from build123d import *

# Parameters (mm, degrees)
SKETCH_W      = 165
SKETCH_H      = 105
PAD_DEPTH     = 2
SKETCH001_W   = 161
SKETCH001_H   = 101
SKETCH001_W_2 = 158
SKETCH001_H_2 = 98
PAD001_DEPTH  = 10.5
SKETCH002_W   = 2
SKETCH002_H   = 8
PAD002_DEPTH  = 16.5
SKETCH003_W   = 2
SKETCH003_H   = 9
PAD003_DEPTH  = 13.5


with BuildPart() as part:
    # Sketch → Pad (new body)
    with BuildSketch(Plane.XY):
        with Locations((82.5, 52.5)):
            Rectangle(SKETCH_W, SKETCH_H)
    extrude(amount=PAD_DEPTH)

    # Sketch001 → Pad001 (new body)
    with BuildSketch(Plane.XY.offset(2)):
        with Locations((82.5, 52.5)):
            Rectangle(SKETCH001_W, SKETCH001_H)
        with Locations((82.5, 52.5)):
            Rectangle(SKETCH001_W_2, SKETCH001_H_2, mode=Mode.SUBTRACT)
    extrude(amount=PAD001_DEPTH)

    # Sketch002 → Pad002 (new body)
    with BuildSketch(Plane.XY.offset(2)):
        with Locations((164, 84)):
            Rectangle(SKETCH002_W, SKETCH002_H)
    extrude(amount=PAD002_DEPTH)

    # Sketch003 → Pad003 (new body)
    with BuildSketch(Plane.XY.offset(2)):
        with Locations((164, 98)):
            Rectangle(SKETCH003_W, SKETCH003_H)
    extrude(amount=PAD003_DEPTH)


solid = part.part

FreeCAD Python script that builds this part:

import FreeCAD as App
import Part
import Sketcher


def add_polygon(sketch, points):
    """Adds a closed chain of lines whose ends are joined by coincident constraints."""
    first, n = sketch.GeometryCount, len(points)
    for a, b in zip(points, points[1:] + points[:1]):
        sketch.addGeometry(Part.LineSegment(App.Vector(*a, 0), App.Vector(*b, 0)), False)
    for i in range(n):
        sketch.addConstraint(Sketcher.Constraint("Coincident", first + i, 2, first + (i + 1) % n, 1))

doc = App.newDocument("Part")
body = doc.addObject("PartDesign::Body", "Body")

sketch1 = body.newObject("Sketcher::SketchObject", "Sketch")
sketch1.AttachmentSupport = (doc.getObject("XY_Plane"), [""])
sketch1.MapMode = "FlatFace"
add_polygon(sketch1, [(0, 105), (0, 0), (165, 0), (165, 105)])
sketch1.addConstraint([
    Sketcher.Constraint("Vertical", 0),
    Sketcher.Constraint("Horizontal", 1),
    Sketcher.Constraint("Vertical", 2),
    Sketcher.Constraint("Horizontal", 3),
    Sketcher.Constraint("Coincident", 0, 2, -1, 1),
    Sketcher.Constraint("DistanceX", 1, 1, 1, 2, 165.0),
    Sketcher.Constraint("DistanceY", 0, 2, 0, 1, 105.0),
])
pad1 = body.newObject("PartDesign::Pad", "Pad")
pad1.Profile = sketch1
pad1.Length = 2

sketch2 = body.newObject("Sketcher::SketchObject", "Sketch001")
sketch2.AttachmentSupport = (doc.getObject("XY_Plane"), [""])
sketch2.MapMode = "FlatFace"
sketch2.AttachmentOffset = App.Placement(App.Vector(0, 0, 2), App.Rotation())
add_polygon(sketch2, [(2, 103), (2, 2), (163, 2), (163, 103)])
add_polygon(sketch2, [(161.5, 3.5), (3.5, 3.5), (3.5, 101.5), (161.5, 101.5)])
sketch2.addConstraint([
    Sketcher.Constraint("Vertical", 0),
    Sketcher.Constraint("Horizontal", 1),
    Sketcher.Constraint("Vertical", 2),
    Sketcher.Constraint("Horizontal", 3),
    Sketcher.Constraint("Horizontal", 4),
    Sketcher.Constraint("Vertical", 5),
    Sketcher.Constraint("Horizontal", 6),
    Sketcher.Constraint("Vertical", 7),
    Sketcher.Constraint("DistanceX", 1, 1, 1, 2, 161.0),
    Sketcher.Constraint("DistanceX", 4, 2, 4, 1, 158.0),
    Sketcher.Constraint("DistanceY", 0, 2, 0, 1, 101.0),
    Sketcher.Constraint("DistanceY", 5, 1, 5, 2, 98.0),
    Sketcher.Constraint("DistanceX", -1, 1, 0, 2, 2.0),
    Sketcher.Constraint("DistanceY", -1, 1, 0, 2, 2.0),
    Sketcher.Constraint("DistanceX", -1, 1, 4, 2, 3.5),
    Sketcher.Constraint("DistanceY", -1, 1, 4, 2, 3.5),
])
pad2 = body.newObject("PartDesign::Pad", "Pad001")
pad2.Profile = sketch2
pad2.Length = 10.5

sketch3 = body.newObject("Sketcher::SketchObject", "Sketch002")
sketch3.AttachmentSupport = (doc.getObject("XY_Plane"), [""])
sketch3.MapMode = "FlatFace"
sketch3.AttachmentOffset = App.Placement(App.Vector(0, 0, 2), App.Rotation())
add_polygon(sketch3, [(163, 88), (163, 80), (165, 80), (165, 88)])
sketch3.addConstraint([
    Sketcher.Constraint("Vertical", 0),
    Sketcher.Constraint("Horizontal", 1),
    Sketcher.Constraint("Vertical", 2),
    Sketcher.Constraint("Horizontal", 3),
    Sketcher.Constraint("DistanceX", 1, 1, 1, 2, 2.0),
    Sketcher.Constraint("DistanceY", 0, 2, 0, 1, 8.0),
    Sketcher.Constraint("DistanceX", -1, 1, 0, 2, 163.0),
    Sketcher.Constraint("DistanceY", -1, 1, 0, 2, 80.0),
])
pad3 = body.newObject("PartDesign::Pad", "Pad002")
pad3.Profile = sketch3
pad3.Length = 16.5

sketch4 = body.newObject("Sketcher::SketchObject", "Sketch003")
sketch4.AttachmentSupport = (doc.getObject("XY_Plane"), [""])
sketch4.MapMode = "FlatFace"
sketch4.AttachmentOffset = App.Placement(App.Vector(0, 0, 2), App.Rotation())
add_polygon(sketch4, [(163, 102.5), (163, 93.5), (165, 93.5), (165, 102.5)])
sketch4.addConstraint([
    Sketcher.Constraint("Vertical", 0),
    Sketcher.Constraint("Horizontal", 1),
    Sketcher.Constraint("Vertical", 2),
    Sketcher.Constraint("Horizontal", 3),
    Sketcher.Constraint("DistanceX", 1, 1, 1, 2, 2.0),
    Sketcher.Constraint("DistanceY", 0, 2, 0, 1, 9.0),
    Sketcher.Constraint("DistanceX", -1, 1, 0, 2, 163.0),
    Sketcher.Constraint("DistanceY", -1, 1, 0, 2, 93.5),
])
pad4 = body.newObject("PartDesign::Pad", "Pad003")
pad4.Profile = sketch4
pad4.Length = 13.5

doc.recompute()
